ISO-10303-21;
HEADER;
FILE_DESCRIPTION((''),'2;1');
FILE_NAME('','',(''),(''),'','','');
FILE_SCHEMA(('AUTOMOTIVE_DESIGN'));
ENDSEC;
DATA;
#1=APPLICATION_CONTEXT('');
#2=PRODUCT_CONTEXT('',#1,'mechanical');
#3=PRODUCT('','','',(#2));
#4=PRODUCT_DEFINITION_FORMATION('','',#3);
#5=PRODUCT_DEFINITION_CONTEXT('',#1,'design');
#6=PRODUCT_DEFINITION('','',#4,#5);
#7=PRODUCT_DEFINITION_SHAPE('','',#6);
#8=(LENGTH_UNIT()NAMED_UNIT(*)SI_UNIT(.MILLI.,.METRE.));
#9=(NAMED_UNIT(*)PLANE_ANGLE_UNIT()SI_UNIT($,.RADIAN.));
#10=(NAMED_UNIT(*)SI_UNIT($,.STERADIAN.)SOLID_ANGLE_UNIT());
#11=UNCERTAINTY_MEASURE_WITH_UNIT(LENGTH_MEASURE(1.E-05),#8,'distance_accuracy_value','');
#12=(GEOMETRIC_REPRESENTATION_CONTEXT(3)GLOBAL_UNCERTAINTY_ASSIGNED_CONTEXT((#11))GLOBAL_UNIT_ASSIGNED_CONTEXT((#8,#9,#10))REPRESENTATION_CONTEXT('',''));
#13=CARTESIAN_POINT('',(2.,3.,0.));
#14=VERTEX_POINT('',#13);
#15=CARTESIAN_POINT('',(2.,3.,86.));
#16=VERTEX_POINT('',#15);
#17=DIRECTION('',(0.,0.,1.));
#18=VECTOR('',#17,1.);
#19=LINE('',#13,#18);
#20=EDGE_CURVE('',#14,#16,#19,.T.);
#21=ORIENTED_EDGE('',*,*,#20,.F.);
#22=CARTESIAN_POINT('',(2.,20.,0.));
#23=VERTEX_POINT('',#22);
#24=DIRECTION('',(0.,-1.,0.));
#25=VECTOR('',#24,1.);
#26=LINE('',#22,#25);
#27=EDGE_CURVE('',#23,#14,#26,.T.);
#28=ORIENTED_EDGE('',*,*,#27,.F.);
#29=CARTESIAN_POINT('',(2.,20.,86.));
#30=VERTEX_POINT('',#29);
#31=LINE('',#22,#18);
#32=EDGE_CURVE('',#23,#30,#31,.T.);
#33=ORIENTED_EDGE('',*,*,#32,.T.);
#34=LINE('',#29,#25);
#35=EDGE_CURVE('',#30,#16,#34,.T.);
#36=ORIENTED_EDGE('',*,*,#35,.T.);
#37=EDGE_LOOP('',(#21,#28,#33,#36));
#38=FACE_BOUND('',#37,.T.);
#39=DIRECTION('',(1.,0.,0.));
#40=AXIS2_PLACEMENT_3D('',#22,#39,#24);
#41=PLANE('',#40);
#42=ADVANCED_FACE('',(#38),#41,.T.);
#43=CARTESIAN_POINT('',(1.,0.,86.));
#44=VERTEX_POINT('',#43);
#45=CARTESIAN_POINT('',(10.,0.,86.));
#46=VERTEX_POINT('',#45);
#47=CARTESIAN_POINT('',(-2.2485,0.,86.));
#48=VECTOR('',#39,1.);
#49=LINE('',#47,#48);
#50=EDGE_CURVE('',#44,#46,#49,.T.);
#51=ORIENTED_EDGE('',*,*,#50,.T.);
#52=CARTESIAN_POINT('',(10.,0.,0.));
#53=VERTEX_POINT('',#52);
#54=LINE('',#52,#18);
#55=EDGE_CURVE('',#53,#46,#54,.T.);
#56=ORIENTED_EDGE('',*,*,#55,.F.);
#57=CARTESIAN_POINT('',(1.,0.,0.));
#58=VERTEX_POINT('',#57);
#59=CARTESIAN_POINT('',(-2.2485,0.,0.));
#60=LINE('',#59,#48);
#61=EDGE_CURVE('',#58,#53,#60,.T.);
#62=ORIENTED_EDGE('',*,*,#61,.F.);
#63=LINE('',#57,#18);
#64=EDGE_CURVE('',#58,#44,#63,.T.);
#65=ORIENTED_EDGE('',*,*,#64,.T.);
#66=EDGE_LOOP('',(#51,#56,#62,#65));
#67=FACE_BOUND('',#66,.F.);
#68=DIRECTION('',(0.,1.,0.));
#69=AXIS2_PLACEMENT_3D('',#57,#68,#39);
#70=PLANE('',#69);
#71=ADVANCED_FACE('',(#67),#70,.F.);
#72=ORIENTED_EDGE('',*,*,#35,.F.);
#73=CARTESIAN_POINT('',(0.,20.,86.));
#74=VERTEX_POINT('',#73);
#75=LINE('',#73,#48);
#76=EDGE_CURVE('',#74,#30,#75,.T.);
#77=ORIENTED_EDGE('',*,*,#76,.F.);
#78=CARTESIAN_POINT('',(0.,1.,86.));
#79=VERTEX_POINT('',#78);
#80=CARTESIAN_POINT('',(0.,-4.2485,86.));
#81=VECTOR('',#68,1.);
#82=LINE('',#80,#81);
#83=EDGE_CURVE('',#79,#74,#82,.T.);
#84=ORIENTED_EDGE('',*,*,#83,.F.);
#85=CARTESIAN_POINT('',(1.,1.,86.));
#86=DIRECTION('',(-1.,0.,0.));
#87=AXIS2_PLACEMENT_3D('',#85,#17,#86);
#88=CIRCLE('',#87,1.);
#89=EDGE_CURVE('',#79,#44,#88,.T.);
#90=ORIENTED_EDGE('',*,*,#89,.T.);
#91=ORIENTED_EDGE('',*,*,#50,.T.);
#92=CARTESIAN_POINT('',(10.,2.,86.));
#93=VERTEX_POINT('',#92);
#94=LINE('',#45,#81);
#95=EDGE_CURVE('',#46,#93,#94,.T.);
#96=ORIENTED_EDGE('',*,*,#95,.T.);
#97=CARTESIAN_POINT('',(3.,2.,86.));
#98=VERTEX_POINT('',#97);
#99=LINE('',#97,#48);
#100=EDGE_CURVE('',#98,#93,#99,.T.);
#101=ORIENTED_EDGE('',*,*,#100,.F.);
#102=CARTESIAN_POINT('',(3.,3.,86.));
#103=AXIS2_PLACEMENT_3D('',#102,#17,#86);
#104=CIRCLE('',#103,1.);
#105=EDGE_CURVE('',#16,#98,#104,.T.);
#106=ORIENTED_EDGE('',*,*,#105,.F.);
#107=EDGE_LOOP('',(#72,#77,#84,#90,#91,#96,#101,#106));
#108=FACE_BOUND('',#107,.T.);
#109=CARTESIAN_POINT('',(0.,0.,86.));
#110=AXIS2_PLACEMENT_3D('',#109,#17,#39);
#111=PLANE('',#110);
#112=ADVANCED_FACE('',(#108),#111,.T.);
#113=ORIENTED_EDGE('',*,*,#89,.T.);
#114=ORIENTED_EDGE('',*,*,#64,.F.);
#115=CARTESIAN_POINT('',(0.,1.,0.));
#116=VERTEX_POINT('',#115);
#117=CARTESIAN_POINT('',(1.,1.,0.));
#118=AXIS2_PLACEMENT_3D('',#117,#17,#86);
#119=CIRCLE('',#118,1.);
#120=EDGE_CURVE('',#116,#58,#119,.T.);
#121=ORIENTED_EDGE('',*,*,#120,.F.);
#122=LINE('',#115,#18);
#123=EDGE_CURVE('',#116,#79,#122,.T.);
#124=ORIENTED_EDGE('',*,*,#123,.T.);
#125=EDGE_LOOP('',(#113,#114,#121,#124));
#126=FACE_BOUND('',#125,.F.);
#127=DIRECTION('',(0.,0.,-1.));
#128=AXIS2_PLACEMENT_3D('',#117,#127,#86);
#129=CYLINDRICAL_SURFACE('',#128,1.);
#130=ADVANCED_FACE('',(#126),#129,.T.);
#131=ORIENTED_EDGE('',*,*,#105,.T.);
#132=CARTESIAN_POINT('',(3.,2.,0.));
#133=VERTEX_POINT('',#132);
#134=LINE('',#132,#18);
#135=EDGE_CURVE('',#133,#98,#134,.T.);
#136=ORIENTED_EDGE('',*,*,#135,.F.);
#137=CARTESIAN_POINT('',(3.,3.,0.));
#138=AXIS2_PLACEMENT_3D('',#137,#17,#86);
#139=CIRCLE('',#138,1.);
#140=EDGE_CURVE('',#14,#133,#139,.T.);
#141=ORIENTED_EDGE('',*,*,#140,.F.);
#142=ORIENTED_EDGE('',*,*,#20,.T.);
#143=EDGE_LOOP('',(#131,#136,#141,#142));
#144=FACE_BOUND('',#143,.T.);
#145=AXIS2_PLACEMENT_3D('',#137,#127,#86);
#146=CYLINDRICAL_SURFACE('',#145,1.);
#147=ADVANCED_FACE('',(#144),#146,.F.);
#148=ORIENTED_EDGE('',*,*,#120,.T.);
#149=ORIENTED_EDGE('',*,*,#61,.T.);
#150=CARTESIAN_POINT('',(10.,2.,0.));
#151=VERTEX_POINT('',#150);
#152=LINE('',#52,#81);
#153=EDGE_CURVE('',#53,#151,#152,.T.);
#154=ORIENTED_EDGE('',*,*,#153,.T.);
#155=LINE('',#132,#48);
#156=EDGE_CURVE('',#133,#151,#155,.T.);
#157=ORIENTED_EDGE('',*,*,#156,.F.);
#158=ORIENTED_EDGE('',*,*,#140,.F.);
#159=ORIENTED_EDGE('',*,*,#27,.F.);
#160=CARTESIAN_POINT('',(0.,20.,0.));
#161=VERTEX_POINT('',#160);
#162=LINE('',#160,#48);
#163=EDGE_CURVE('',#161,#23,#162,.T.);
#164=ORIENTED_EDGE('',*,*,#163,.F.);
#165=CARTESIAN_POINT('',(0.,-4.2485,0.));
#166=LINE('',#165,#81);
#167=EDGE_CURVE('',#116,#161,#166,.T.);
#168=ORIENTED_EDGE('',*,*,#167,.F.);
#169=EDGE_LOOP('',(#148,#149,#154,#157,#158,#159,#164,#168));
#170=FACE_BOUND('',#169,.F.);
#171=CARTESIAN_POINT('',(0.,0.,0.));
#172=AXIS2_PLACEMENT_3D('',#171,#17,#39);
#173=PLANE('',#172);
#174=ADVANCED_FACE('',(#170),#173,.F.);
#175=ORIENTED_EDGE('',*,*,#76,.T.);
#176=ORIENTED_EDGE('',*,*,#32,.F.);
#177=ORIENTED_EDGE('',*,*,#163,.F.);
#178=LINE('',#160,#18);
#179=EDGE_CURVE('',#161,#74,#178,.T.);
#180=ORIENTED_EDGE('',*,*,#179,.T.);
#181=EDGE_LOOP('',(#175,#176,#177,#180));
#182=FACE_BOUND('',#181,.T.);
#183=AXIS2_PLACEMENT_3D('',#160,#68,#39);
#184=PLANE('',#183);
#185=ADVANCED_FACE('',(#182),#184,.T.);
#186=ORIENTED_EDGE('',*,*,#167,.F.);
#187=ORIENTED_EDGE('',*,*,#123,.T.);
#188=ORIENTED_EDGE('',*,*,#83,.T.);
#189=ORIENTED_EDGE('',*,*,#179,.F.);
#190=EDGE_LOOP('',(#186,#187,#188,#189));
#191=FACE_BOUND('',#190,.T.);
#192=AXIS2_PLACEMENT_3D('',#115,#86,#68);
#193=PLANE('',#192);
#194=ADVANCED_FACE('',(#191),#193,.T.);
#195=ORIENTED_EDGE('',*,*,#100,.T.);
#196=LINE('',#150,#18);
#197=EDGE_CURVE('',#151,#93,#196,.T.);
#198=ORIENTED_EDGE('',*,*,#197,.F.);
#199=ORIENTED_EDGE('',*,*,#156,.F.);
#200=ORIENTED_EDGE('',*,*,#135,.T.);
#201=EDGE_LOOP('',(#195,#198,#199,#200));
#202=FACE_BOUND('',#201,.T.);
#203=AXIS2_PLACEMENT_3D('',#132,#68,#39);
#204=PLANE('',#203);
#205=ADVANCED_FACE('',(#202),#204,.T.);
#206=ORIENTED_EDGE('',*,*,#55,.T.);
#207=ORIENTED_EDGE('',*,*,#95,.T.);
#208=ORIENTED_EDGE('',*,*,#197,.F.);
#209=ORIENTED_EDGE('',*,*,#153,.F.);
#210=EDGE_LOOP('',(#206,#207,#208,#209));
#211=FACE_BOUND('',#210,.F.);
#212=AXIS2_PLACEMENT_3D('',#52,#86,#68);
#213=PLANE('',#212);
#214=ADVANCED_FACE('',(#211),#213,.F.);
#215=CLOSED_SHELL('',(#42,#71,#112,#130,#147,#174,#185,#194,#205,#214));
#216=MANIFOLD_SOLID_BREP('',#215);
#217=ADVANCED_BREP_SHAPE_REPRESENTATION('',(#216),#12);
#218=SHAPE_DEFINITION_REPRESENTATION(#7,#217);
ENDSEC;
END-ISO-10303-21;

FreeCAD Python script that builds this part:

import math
import FreeCAD as App
import Part
import Sketcher

V = App.Vector

doc = App.newDocument("Part")
params = doc.addObject("Spreadsheet::Sheet", "Params")
for row, (alias, value) in enumerate([
    ("sketch1_radius", "1 mm"),
    ("sketch1_width", "2 mm"),
    ("pad1_length", "86 mm"),
], start=1):
    params.set(f"A{row}", alias)
    params.set(f"B{row}", "=" + value)
    params.setAlias(f"B{row}", alias)

body = doc.addObject("PartDesign::Body", "Body")

# Sketch on XY plane
sketch1 = body.newObject("Sketcher::SketchObject", "Sketch")
sketch1.AttachmentSupport = (doc.getObject("XY_Plane"), [""])
sketch1.MapMode = "FlatFace"
sketch1.addGeometry(Part.ArcOfCircle(Part.Circle(V(1, 1, 0), V(0, 0, 1), 1), math.radians(180), math.radians(270)), False)
sketch1.addGeometry(Part.LineSegment(V(1, 0, 0), V(10, 0, 0)), False)
sketch1.addGeometry(Part.LineSegment(V(10, 0, 0), V(10, 2, 0)), False)
sketch1.addGeometry(Part.LineSegment(V(10, 2, 0), V(3, 2, 0)), False)
sketch1.addGeometry(Part.ArcOfCircle(Part.Circle(V(3, 3, 0), V(0, 0, 1), 1), math.radians(180), math.radians(270)), False)
sketch1.addGeometry(Part.LineSegment(V(2, 3, 0), V(2, 20, 0)), False)
sketch1.addGeometry(Part.LineSegment(V(2, 20, 0), V(0, 20, 0)), False)
sketch1.addGeometry(Part.LineSegment(V(0, 20, 0), V(0, 1, 0)), False)
sketch1.addConstraint(Sketcher.Constraint("Tangent", 0, 2, 1, 1))
sketch1.addConstraint(Sketcher.Constraint("Coincident", 1, 2, 2, 1))
sketch1.addConstraint(Sketcher.Constraint("Coincident", 2, 2, 3, 1))
sketch1.addConstraint(Sketcher.Constraint("Tangent", 3, 2, 4, 2))
sketch1.addConstraint(Sketcher.Constraint("Tangent", 4, 1, 5, 1))
sketch1.addConstraint(Sketcher.Constraint("Coincident", 5, 2, 6, 1))
sketch1.addConstraint(Sketcher.Constraint("Coincident", 6, 2, 7, 1))
sketch1.addConstraint(Sketcher.Constraint("Tangent", 7, 2, 0, 1))
sketch1.addConstraint(Sketcher.Constraint("Horizontal", 1))
sketch1.addConstraint(Sketcher.Constraint("Vertical", 2))
sketch1.addConstraint(Sketcher.Constraint("Horizontal", 3))
sketch1.addConstraint(Sketcher.Constraint("Vertical", 5))
sketch1.addConstraint(Sketcher.Constraint("Horizontal", 6))
sketch1.addConstraint(Sketcher.Constraint("Vertical", 7))
sketch1.addConstraint(Sketcher.Constraint("Equal", 0, 4))
sketch1.addConstraint(Sketcher.Constraint("PointOnObject", 0, 2, -1))
sketch1.addConstraint(Sketcher.Constraint("PointOnObject", 6, 2, -2))
sketch1.addConstraint(Sketcher.Constraint("Equal", 6, 2))
sketch1.addConstraint(Sketcher.Constraint("Radius", 0, 1.0))
sketch1.addConstraint(Sketcher.Constraint("DistanceX", 6, 2, 6, 1, 2.0))
sketch1.addConstraint(Sketcher.Constraint("DistanceX", -1, 1, 1, 2, 10.0))
sketch1.addConstraint(Sketcher.Constraint("DistanceY", -1, 1, 5, 2, 20.0))
sketch1.setExpression("Constraints[18]", "Params.sketch1_radius")
sketch1.setExpression("Constraints[19]", "Params.sketch1_width")
pad1 = body.newObject("PartDesign::Pad", "Pad")
pad1.Profile = sketch1
pad1.setExpression("Length", "Params.pad1_length")

doc.recompute()
